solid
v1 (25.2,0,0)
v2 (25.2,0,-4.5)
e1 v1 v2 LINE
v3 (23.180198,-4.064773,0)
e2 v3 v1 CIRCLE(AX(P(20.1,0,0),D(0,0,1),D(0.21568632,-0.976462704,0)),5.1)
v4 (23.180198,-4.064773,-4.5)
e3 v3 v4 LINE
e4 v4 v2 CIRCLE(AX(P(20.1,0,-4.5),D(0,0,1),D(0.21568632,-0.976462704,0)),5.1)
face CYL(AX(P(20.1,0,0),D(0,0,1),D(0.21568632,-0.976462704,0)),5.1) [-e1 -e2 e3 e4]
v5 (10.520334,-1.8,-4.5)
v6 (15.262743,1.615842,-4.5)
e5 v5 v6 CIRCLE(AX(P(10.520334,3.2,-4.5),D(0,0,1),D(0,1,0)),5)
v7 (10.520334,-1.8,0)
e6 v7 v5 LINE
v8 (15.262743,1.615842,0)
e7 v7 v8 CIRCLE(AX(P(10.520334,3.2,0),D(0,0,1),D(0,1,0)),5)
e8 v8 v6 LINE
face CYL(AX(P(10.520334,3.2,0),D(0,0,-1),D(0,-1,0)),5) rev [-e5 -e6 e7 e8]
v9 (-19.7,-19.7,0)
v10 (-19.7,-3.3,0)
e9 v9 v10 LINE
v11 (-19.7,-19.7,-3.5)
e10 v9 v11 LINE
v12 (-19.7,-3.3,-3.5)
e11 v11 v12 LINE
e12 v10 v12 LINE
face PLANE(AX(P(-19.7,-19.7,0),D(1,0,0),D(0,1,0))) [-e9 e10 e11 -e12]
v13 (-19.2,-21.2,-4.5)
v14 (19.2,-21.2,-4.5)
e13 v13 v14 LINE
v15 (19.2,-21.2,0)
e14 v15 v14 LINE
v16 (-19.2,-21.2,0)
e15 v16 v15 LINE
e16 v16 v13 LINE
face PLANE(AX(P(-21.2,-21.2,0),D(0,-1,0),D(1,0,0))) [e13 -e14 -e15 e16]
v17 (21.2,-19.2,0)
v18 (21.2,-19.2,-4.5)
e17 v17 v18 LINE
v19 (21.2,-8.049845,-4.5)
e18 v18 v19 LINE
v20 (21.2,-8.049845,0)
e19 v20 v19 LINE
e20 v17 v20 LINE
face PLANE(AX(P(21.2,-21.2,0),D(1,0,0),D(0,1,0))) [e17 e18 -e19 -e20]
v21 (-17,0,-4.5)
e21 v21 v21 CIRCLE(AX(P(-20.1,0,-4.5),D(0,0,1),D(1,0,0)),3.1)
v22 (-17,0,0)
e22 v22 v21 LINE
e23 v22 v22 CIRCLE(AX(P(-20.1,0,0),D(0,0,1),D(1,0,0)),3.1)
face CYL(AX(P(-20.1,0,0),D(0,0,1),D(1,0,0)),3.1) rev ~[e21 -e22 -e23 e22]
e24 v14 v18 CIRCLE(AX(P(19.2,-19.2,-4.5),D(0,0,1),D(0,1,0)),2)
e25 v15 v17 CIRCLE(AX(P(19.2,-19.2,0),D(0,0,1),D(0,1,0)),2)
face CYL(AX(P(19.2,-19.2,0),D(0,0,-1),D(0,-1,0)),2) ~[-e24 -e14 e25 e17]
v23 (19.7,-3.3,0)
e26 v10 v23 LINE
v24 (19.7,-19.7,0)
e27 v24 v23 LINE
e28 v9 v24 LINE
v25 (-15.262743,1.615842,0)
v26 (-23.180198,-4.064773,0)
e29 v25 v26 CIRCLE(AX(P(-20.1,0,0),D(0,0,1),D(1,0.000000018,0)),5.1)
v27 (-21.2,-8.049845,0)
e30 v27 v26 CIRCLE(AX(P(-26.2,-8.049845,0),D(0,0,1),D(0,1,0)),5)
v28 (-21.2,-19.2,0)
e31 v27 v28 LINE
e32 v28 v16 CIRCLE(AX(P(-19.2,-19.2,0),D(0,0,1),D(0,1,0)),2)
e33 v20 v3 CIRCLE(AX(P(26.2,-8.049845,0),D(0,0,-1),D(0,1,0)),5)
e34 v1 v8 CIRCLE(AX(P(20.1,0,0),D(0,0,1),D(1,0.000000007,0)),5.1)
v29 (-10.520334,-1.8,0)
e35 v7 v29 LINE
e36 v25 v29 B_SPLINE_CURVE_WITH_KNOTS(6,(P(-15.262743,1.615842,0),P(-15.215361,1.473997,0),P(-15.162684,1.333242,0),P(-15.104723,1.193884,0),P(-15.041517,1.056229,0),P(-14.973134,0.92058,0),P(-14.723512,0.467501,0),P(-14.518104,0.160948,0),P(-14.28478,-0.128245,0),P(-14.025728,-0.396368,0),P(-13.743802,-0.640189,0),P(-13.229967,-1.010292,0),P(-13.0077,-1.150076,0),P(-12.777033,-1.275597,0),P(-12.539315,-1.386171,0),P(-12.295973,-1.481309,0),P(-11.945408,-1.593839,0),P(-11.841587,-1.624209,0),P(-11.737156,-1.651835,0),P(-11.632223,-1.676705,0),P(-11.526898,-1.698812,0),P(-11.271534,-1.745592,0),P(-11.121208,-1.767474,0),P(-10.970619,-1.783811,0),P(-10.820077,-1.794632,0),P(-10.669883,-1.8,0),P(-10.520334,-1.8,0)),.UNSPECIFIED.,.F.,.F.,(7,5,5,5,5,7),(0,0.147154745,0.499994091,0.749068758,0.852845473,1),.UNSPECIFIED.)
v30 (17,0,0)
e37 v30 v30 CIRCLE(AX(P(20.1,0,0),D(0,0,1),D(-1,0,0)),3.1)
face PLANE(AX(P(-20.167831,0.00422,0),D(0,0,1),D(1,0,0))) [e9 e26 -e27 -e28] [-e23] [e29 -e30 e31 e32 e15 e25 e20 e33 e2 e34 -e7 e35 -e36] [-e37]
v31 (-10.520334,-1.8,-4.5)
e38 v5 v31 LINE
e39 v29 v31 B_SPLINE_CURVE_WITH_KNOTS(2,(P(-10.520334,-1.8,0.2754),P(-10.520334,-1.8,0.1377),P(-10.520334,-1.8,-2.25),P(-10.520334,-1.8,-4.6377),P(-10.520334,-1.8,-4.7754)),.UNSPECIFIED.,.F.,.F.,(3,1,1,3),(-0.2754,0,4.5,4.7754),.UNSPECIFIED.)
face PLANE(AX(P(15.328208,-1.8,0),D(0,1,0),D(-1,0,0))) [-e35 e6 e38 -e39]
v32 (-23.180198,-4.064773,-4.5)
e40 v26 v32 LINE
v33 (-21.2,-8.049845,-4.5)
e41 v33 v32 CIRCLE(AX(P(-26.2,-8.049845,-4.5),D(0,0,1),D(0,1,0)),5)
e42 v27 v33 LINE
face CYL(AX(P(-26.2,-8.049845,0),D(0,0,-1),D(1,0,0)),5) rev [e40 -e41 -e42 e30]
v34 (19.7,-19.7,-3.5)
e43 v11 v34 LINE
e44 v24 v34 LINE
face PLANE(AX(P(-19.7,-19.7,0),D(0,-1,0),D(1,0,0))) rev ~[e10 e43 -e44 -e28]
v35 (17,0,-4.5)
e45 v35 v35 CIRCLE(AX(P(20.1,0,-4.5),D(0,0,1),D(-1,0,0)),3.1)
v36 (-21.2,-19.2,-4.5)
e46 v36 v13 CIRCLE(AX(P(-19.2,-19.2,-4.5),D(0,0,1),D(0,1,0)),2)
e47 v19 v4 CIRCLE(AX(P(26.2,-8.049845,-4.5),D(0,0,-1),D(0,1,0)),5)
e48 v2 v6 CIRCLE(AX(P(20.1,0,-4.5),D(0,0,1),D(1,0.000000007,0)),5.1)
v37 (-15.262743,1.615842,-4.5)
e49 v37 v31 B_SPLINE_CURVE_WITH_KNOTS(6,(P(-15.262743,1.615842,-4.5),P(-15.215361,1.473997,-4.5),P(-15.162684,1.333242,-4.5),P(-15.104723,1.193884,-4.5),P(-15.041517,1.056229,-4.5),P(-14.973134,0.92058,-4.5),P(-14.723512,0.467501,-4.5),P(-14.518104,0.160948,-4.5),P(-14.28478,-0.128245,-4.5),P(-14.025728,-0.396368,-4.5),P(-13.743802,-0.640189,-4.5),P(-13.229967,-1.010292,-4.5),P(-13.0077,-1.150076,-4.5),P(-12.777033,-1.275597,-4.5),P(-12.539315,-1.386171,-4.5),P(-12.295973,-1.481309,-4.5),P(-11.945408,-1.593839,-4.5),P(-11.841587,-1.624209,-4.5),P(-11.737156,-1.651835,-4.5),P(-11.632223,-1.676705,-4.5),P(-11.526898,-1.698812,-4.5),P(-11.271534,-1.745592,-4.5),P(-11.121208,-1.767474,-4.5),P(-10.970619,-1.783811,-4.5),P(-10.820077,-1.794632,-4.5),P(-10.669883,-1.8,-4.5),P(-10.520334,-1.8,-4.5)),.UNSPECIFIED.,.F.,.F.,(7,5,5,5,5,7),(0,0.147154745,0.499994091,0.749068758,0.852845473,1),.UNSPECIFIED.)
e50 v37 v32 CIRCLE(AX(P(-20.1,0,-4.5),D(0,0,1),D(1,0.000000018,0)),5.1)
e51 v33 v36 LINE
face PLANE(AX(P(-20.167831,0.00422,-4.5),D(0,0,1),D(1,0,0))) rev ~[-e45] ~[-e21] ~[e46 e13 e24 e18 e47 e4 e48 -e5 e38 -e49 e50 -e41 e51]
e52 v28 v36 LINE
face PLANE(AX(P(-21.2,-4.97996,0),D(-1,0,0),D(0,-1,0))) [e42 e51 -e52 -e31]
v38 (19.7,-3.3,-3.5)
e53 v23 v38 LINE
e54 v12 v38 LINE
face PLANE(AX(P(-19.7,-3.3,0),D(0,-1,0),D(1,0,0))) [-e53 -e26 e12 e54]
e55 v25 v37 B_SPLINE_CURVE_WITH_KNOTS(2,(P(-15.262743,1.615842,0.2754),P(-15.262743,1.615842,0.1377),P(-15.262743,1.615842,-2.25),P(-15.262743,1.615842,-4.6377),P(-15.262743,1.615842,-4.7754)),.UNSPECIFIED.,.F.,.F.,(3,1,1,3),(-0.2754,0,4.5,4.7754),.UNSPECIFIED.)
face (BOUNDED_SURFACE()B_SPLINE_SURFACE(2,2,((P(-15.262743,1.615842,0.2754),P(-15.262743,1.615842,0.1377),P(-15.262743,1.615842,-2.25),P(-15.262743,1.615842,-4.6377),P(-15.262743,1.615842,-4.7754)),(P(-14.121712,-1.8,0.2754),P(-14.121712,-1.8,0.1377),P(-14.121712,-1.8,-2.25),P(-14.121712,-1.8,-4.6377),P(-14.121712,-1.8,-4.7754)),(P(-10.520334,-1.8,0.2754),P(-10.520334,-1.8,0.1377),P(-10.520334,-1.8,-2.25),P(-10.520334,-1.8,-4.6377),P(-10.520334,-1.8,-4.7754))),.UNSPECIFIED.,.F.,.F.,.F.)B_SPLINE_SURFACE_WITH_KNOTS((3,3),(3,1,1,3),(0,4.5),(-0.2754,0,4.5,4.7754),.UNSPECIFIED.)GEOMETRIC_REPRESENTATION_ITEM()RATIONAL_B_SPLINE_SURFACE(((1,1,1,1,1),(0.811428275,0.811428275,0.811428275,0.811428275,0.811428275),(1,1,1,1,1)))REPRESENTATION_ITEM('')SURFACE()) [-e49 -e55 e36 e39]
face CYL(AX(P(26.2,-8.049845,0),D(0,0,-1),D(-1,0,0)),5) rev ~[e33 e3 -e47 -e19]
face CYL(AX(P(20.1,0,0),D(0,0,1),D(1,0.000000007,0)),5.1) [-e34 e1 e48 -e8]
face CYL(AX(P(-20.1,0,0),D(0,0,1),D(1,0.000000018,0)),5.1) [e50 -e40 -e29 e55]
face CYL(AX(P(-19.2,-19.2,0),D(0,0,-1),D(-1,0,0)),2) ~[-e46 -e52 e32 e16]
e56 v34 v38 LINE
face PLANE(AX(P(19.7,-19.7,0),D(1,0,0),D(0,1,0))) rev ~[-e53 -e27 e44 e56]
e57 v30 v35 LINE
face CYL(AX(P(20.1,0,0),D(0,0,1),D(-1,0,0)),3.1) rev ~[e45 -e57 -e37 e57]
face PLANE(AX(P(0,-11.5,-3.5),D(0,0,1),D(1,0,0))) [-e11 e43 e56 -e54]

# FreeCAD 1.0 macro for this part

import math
import FreeCAD as App
import Part
import Sketcher
Q = App.Units.Quantity


def edges_at(feature, points):
    """Names of the edges that pass closest to the given points."""
    edges = feature.Shape.Edges
    near = lambda p: min(range(len(edges)), key=lambda i: edges[i].distToShape(Part.Vertex(*p))[0])
    return sorted({f"Edge{near(p) + 1}" for p in points})

doc = App.newDocument("Part")
body = doc.addObject("PartDesign::Body", "Body")

sketch1 = doc.addObject("Sketcher::SketchObject", "Sketch")
body.addObject(sketch1)
sketch1.AttachmentSupport = (doc.XY_Plane, [""])
sketch1.MapMode = "FlatFace"
sketch1.addGeometry([
    Part.ArcOfCircle(Part.Circle(App.Vector(-20.1, 0, 0), App.Vector(0, 0, 1), 5.1), math.radians(-21), math.radians(0)),
    Part.ArcOfCircle(Part.Circle(App.Vector(-20.1, 0, 0), App.Vector(0, 0, 1), 5.1), math.radians(0), math.radians(258)),
    Part.LineSegment(App.Vector(-21.2, -5, 0), App.Vector(-21.2, -21.2, 0)),
    Part.LineSegment(App.Vector(-21.2, -21.2, 0), App.Vector(21.2, -21.2, 0)),
    Part.LineSegment(App.Vector(21.2, -21.2, 0), App.Vector(21.2, -5, 0)),
    Part.ArcOfCircle(Part.Circle(App.Vector(20.1, 0, 0), App.Vector(0, 0, 1), 5.1), math.radians(-78), math.radians(0)),
    Part.ArcOfCircle(Part.Circle(App.Vector(20.1, 0, 0), App.Vector(0, 0, 1), 5.1), math.radians(0), math.radians(201)),
    Part.LineSegment(App.Vector(15.3, -1.8, 0), App.Vector(-15.3, -1.8, 0)),
], False)
sketch1.addConstraint([
    Sketcher.Constraint("Tangent", 0, 2, 1, 1),
    Sketcher.Constraint("Coincident", 1, 2, 2, 1),
    Sketcher.Constraint("Coincident", 2, 2, 3, 1),
    Sketcher.Constraint("Coincident", 3, 2, 4, 1),
    Sketcher.Constraint("Coincident", 4, 2, 5, 1),
    Sketcher.Constraint("Tangent", 5, 2, 6, 1),
    Sketcher.Constraint("Coincident", 6, 2, 7, 1),
    Sketcher.Constraint("Coincident", 7, 2, 0, 1),
    Sketcher.Constraint("Vertical", 2),
    Sketcher.Constraint("Horizontal", 3),
    Sketcher.Constraint("Vertical", 4),
    Sketcher.Constraint("Horizontal", 7),
    Sketcher.Constraint("Equal", 1, 5),
    Sketcher.Constraint("Equal", 5, 6),
    Sketcher.Constraint("Symmetric", 0, 3, 5, 3, -1, 1),
    Sketcher.Constraint("Symmetric", 1, 2, 4, 2, -2),
    Sketcher.Constraint("PointOnObject", 0, 3, -1),
    Sketcher.Constraint("PointOnObject", 0, 2, -1),
    Sketcher.Constraint("PointOnObject", 5, 2, -1),
    Sketcher.Constraint("Radius", 1, Q("5.1 mm")),
    Sketcher.Constraint("DistanceX", 3, 1, 3, 2, Q("42.4 mm")),
    Sketcher.Constraint("DistanceX", 0, 2, -1, 1, Q("15 mm")),
    Sketcher.Constraint("DistanceY", 2, 2, -1, 1, Q("21.2 mm")),
    Sketcher.Constraint("DistanceY", 6, 2, -1, 1, Q("1.8 mm")),
])
pad1 = doc.addObject("PartDesign::Pad", "Pad")
body.addObject(pad1)
pad1.Profile = sketch1
pad1.Length = 4.5
pad1.Reversed = True

sketch2 = doc.addObject("Sketcher::SketchObject", "Sketch001")
body.addObject(sketch2)
sketch2.AttachmentSupport = (doc.XY_Plane, [""])
sketch2.MapMode = "FlatFace"
sketch2.addGeometry([
    Part.Circle(App.Vector(-20.1, 0, 0), App.Vector(0, 0, 1), 3.1),
    Part.Circle(App.Vector(20.1, 0, 0), App.Vector(0, 0, 1), 3.1),
], False)
sketch2.addConstraint([
    Sketcher.Constraint("Equal", 0, 1),
    Sketcher.Constraint("Symmetric", 0, 3, 1, 3, -1, 1),
    Sketcher.Constraint("PointOnObject", 0, 3, -1),
    Sketcher.Constraint("Diameter", 0, Q("6.2 mm")),
    Sketcher.Constraint("DistanceX", 0, 3, -1, 1, Q("20.1 mm")),
])
pocket1 = doc.addObject("PartDesign::Pocket", "Pocket")
body.addObject(pocket1)
pocket1.Profile = sketch2
pocket1.Type = "ThroughAll"

sketch3 = doc.addObject("Sketcher::SketchObject", "Sketch002")
body.addObject(sketch3)
sketch3.AttachmentSupport = (doc.XY_Plane, [""])
sketch3.MapMode = "FlatFace"
sketch3.addGeometry([
    Part.LineSegment(App.Vector(-20, -3, 0), App.Vector(-20, -20, 0)),
    Part.LineSegment(App.Vector(-20, -20, 0), App.Vector(20, -20, 0)),
    Part.LineSegment(App.Vector(20, -20, 0), App.Vector(20, -3, 0)),
    Part.LineSegment(App.Vector(20, -3, 0), App.Vector(-20, -3, 0)),
], False)
sketch3.addConstraint([
    Sketcher.Constraint("Coincident", 0, 2, 1, 1),
    Sketcher.Constraint("Coincident", 1, 2, 2, 1),
    Sketcher.Constraint("Coincident", 2, 2, 3, 1),
    Sketcher.Constraint("Coincident", 3, 2, 0, 1),
    Sketcher.Constraint("Vertical", 0),
    Sketcher.Constraint("Horizontal", 1),
    Sketcher.Constraint("Vertical", 2),
    Sketcher.Constraint("Horizontal", 3),
    Sketcher.Constraint("DistanceX", 1, 1, 1, 2, Q("39.4 mm")),
    Sketcher.Constraint("DistanceY", 0, 2, 0, 1, Q("16.4 mm")),
    Sketcher.Constraint("DistanceX", 0, 2, -1, 1, Q("19.7 mm")),
    Sketcher.Constraint("DistanceY", 0, 2, -1, 1, Q("19.7 mm")),
])
pocket2 = doc.addObject("PartDesign::Pocket", "Pocket001")
body.addObject(pocket2)
pocket2.Profile = sketch3
pocket2.Length = 3.5
doc.recompute()

fillet = doc.addObject("PartDesign::Fillet", "Fillet")
body.addObject(fillet)
fillet.Base = (pocket2, edges_at(pocket2, [(-21.2, -21.2, -2.25), (21.2, -21.2, -2.25)]))
fillet.Radius = 2
doc.recompute()

fillet2 = doc.addObject("PartDesign::Fillet", "Fillet001")
body.addObject(fillet2)
fillet2.Base = (fillet, edges_at(fillet, [
    (-21.2, -4.98, -2.25),
    (-15.328, -1.8, -2.25),
    (21.2, -4.98, -2.25),
    (15.328, -1.8, -2.25),
]))
fillet2.Radius = 5

doc.recompute()
